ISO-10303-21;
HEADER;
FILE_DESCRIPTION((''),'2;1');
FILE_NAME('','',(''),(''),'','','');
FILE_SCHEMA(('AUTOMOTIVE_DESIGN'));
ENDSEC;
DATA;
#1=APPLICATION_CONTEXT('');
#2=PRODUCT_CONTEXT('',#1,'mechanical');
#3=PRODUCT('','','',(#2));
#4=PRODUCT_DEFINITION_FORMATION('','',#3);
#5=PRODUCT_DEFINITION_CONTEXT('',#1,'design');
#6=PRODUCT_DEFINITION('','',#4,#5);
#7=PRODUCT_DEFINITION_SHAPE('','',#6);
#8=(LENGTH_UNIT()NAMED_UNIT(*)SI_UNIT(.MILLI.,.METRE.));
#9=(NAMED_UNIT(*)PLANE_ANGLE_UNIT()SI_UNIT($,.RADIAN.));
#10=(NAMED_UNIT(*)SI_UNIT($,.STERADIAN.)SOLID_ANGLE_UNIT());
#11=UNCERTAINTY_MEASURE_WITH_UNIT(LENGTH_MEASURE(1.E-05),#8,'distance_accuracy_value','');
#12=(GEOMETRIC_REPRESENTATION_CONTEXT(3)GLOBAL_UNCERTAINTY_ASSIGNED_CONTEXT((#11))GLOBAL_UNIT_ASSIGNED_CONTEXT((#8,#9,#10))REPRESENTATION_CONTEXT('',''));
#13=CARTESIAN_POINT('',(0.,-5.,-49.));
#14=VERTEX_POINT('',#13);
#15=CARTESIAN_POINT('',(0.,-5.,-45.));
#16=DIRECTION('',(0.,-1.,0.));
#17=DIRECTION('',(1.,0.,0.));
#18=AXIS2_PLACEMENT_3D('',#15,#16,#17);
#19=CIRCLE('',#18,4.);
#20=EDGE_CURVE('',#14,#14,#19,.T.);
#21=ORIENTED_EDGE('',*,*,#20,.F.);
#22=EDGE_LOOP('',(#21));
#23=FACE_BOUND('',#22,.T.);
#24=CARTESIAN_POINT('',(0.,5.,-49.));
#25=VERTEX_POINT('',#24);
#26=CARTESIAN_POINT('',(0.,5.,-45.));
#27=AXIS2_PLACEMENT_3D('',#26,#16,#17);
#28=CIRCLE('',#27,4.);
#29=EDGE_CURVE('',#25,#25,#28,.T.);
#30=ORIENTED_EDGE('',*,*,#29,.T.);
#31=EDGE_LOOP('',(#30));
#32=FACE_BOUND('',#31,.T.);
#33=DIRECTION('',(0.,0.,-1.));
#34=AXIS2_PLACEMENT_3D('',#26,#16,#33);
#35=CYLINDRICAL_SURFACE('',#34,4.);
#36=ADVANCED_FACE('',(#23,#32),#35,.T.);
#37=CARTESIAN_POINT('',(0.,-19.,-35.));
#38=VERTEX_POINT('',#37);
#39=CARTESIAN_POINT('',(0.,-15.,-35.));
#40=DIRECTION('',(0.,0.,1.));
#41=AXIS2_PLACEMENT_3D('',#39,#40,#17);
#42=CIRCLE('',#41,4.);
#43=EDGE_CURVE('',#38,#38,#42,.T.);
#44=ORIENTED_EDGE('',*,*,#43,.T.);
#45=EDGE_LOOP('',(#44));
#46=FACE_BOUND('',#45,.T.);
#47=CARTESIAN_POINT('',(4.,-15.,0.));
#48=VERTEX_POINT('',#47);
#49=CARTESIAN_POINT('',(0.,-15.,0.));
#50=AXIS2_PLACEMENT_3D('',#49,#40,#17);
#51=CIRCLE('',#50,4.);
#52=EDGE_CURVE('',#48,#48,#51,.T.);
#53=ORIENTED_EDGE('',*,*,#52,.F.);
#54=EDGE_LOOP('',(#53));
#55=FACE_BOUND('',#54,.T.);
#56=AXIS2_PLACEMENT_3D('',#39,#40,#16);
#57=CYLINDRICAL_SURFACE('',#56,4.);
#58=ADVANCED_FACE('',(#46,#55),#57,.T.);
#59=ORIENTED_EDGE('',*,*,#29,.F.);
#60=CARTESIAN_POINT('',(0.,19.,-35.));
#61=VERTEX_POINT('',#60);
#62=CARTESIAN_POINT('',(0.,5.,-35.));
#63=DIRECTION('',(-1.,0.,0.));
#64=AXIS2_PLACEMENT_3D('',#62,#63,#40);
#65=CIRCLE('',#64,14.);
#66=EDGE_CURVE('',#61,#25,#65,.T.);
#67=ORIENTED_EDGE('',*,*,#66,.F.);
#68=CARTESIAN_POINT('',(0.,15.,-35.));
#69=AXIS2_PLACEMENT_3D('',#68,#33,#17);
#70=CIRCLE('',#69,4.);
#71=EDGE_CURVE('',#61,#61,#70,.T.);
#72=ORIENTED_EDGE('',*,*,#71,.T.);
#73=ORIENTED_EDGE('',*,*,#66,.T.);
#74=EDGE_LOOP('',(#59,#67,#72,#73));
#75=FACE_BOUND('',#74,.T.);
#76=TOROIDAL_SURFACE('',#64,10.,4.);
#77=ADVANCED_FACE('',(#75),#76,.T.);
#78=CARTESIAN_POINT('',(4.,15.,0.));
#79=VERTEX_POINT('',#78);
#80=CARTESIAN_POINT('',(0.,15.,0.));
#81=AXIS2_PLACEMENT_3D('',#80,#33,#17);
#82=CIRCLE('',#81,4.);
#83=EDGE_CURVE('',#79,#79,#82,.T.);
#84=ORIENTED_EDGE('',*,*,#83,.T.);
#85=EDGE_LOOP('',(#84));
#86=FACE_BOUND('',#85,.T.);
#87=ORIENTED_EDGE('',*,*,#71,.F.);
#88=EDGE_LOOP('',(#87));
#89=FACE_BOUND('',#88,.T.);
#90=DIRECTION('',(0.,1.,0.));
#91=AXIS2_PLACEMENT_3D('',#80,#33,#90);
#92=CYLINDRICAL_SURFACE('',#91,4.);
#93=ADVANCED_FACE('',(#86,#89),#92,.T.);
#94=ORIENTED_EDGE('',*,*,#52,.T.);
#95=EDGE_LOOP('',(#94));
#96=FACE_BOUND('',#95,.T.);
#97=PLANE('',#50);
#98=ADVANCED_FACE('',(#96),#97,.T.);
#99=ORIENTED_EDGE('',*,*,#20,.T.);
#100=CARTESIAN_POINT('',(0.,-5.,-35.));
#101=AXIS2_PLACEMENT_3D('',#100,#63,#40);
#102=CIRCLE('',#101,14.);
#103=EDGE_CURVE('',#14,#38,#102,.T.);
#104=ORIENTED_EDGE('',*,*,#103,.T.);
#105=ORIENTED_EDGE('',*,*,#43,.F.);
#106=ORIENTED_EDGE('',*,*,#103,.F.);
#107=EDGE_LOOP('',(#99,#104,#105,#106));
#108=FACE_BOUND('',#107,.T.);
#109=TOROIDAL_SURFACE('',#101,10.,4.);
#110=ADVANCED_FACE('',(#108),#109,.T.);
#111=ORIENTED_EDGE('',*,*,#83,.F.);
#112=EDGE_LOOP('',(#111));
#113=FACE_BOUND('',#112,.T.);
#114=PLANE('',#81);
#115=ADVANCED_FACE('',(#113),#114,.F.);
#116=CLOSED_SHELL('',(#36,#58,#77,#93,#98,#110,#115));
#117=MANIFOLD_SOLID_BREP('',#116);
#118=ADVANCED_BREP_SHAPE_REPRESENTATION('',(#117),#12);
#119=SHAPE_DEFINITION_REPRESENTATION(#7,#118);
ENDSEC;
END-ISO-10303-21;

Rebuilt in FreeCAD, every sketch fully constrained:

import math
import FreeCAD as App
import Part
import Sketcher
from FreeCAD import Vector

doc = App.newDocument("Part")
body = doc.addObject("PartDesign::Body", "Body")

# Sketch on XY plane
sketch1 = body.newObject("Sketcher::SketchObject", "Sketch")
sketch1.AttachmentSupport = (doc.getObject("XY_Plane"), [""])
sketch1.MapMode = "FlatFace"
sketch1.addGeometry(Part.Circle(Vector(0, -15, 0), Vector(0, 0, 1), 4), False)
sketch1.addConstraint([
    Sketcher.Constraint("PointOnObject", 0, 3, -2),
    Sketcher.Constraint("Diameter", 0, 8.0),
    Sketcher.Constraint("DistanceY", 0, 3, -1, 1, 15.0),
])

# Sketch on YZ plane
sketch2 = body.newObject("Sketcher::SketchObject", "Sketch001")
sketch2.AttachmentSupport = (doc.getObject("YZ_Plane"), [""])
sketch2.MapMode = "FlatFace"
sketch2.addGeometry([
    Part.LineSegment(Vector(-15, 0, 0), Vector(-15, -35, 0)),  # 0
    Part.ArcOfCircle(Part.Circle(Vector(-5, -35, 0), Vector(0, 0, 1), 10), math.radians(180), math.radians(270)),  # 1
    Part.LineSegment(Vector(-5, -45, 0), Vector(5, -45, 0)),  # 2
    Part.ArcOfCircle(Part.Circle(Vector(5, -35, 0), Vector(0, 0, 1), 10), math.radians(-90), math.radians(0)),  # 3
    Part.LineSegment(Vector(15, -35, 0), Vector(15, 0, 0)),  # 4
], False)
sketch2.addConstraint([
    Sketcher.Constraint("Tangent", 0, 2, 1, 1),
    Sketcher.Constraint("Tangent", 1, 2, 2, 1),
    Sketcher.Constraint("Tangent", 2, 2, 3, 1),
    Sketcher.Constraint("Tangent", 3, 2, 4, 1),
    Sketcher.Constraint("Vertical", 0),
    Sketcher.Constraint("Horizontal", 2),
    Sketcher.Constraint("Vertical", 4),
    Sketcher.Constraint("Equal", 1, 3),
    Sketcher.Constraint("Symmetric", 0, 1, 4, 2, -1, 1),
    Sketcher.Constraint("PointOnObject", 0, 1, -1),
    Sketcher.Constraint("Radius", 1, 10.0),
    Sketcher.Constraint("DistanceX", 2, 1, 2, 2, 10.0),
    Sketcher.Constraint("DistanceY", 0, 2, 0, 1, 35.0),
])
doc.recompute()

additivepipe = body.newObject("PartDesign::AdditivePipe", "AdditivePipe")
additivepipe.Profile = sketch1
additivepipe.Spine = (sketch2, ["Edge1", "Edge2", "Edge3", "Edge4", "Edge5"])

doc.recompute()
